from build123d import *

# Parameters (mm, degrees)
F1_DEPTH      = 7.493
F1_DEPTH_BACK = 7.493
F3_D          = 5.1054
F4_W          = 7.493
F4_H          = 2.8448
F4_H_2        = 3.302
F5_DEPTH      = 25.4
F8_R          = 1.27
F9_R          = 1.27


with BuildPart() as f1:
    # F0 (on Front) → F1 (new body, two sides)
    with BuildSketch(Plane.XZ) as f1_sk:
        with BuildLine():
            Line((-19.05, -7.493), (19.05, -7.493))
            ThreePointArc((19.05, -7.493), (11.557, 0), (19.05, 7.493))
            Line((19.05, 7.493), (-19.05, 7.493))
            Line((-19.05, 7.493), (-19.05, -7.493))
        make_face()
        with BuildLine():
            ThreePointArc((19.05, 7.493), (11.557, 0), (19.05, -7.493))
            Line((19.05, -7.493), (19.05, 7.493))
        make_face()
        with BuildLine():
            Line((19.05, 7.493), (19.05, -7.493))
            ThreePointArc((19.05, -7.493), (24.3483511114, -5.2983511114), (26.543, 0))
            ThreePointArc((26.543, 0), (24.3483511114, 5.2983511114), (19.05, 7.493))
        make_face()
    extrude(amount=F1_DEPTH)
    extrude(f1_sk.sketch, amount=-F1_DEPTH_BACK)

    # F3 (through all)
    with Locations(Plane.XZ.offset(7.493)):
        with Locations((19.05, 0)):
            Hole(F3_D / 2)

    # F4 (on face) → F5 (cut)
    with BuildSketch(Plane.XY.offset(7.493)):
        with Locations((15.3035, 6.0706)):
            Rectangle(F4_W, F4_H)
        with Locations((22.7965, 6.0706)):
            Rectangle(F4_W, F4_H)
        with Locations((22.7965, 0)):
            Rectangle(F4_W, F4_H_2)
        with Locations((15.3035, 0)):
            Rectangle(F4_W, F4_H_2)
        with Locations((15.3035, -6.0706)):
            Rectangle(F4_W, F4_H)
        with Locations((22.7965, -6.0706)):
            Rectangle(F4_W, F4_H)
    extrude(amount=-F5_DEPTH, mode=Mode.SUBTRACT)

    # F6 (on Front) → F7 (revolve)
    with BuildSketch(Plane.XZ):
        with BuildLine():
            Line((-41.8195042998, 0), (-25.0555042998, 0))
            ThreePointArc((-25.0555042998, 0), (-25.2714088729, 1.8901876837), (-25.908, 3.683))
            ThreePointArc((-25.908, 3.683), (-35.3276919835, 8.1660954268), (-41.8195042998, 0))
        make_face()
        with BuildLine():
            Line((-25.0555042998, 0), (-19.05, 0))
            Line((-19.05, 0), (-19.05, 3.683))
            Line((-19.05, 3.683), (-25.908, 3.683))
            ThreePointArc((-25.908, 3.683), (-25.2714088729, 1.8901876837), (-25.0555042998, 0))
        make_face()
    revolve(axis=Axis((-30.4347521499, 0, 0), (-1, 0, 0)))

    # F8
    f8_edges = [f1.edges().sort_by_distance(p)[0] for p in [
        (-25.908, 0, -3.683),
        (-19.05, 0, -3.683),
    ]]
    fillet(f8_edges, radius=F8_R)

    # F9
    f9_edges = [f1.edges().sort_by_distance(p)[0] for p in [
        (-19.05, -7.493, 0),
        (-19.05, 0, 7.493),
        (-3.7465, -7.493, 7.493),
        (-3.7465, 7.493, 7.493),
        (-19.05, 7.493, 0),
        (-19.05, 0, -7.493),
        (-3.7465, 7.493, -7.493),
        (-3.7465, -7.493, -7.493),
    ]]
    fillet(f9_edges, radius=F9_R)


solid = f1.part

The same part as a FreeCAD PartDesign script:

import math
import FreeCAD as App
import Part
import Sketcher
Q = App.Units.Quantity


def edges_at(feature, points):
    """Names of the edges that pass closest to the given points."""
    edges = feature.Shape.Edges
    near = lambda p: min(range(len(edges)), key=lambda i: edges[i].distToShape(Part.Vertex(*p))[0])
    return sorted({f"Edge{near(p) + 1}" for p in points})


def add_polygon(sketch, points):
    """Adds a closed chain of lines whose ends are joined by coincident constraints."""
    first, n = sketch.GeometryCount, len(points)
    for a, b in zip(points, points[1:] + points[:1]):
        sketch.addGeometry(Part.LineSegment(App.Vector(*a, 0), App.Vector(*b, 0)), False)
    for i in range(n):
        sketch.addConstraint(Sketcher.Constraint("Coincident", first + i, 2, first + (i + 1) % n, 1))

doc = App.newDocument("Part")
body = doc.addObject("PartDesign::Body", "Body")

# Sketch on XZ plane
sketch1 = body.newObject("Sketcher::SketchObject", "Sketch")
sketch1.AttachmentSupport = (doc.getObject("XZ_Plane"), [""])
sketch1.MapMode = "FlatFace"
sketch1.addGeometry([
    Part.LineSegment(App.Vector(-19, -7, 0), App.Vector(19, -7, 0)),  # 0
    Part.ArcOfCircle(Part.Circle(App.Vector(19, 0, 0), App.Vector(0, 0, 1), 7), math.radians(-90), math.radians(0)),  # 1
    Part.ArcOfCircle(Part.Circle(App.Vector(19, 0, 0), App.Vector(0, 0, 1), 7), math.radians(0), math.radians(90)),  # 2
    Part.LineSegment(App.Vector(19, 7, 0), App.Vector(-19, 7, 0)),  # 3
    Part.LineSegment(App.Vector(-19, 7, 0), App.Vector(-19, -7, 0)),  # 4
], False)
sketch1.addConstraint([
    Sketcher.Constraint("Tangent", 0, 2, 1, 1),
    Sketcher.Constraint("Tangent", 1, 2, 2, 1),
    Sketcher.Constraint("Tangent", 2, 2, 3, 1),
    Sketcher.Constraint("Coincident", 3, 2, 4, 1),
    Sketcher.Constraint("Coincident", 4, 2, 0, 1),
    Sketcher.Constraint("Horizontal", 0),
    Sketcher.Constraint("Horizontal", 3),
    Sketcher.Constraint("Vertical", 4),
    Sketcher.Constraint("Equal", 1, 2),
    Sketcher.Constraint("Symmetric", 0, 2, 3, 2, -1, 1),
    Sketcher.Constraint("PointOnObject", 1, 2, -1),
    Sketcher.Constraint("DistanceX", 0, 1, 0, 2, Q("1.5 in")),
    Sketcher.Constraint("Radius", 1, Q("0.295 in")),
])
pad1 = body.newObject("PartDesign::Pad", "Pad")
pad1.Profile = sketch1
pad1.Type = "TwoLengths"
pad1.Length = Q("0.295 in")
pad1.Length2 = Q("0.295 in")

# Sketch on XZ plane
sketch2 = body.newObject("Sketcher::SketchObject", "Sketch001")
sketch2.AttachmentSupport = (doc.getObject("XZ_Plane"), [""])
sketch2.MapMode = "FlatFace"
sketch2.AttachmentOffset = App.Placement(App.Vector(0, 0, 0.295 * 25.4), App.Rotation())
sketch2.addGeometry(Part.Circle(App.Vector(19.1, 0, 0), App.Vector(0, 0, 1), 2.6), False)
sketch2.addConstraint([
    Sketcher.Constraint("PointOnObject", 0, 3, -1),
    Sketcher.Constraint("Diameter", 0, Q("0.201 in")),
    Sketcher.Constraint("DistanceX", -1, 1, 0, 3, Q("0.75 in")),
])
doc.recompute()
hole = body.newObject("PartDesign::Hole", "Hole")
hole.Profile = sketch2
hole.ThreadType = "None"
hole.Diameter = Q("0.201 in")
hole.DepthType = "ThroughAll"

# Sketch on XY plane
sketch3 = body.newObject("Sketcher::SketchObject", "Sketch002")
sketch3.AttachmentSupport = (doc.getObject("XY_Plane"), [""])
sketch3.MapMode = "FlatFace"
sketch3.AttachmentOffset = App.Placement(App.Vector(0, 0, 0.295 * 25.4), App.Rotation())
add_polygon(sketch3, [(11.6, 7.5), (11.6, 4.6), (26.5, 4.6), (26.5, 7.5)])  # lines 0-3
add_polygon(sketch3, [(26.5, -1.7), (26.5, 1.7), (11.6, 1.7), (11.6, -1.7)])  # lines 4-7
add_polygon(sketch3, [(11.6, -4.6), (11.6, -7.5), (26.5, -7.5), (26.5, -4.6)])  # lines 8-11
sketch3.addConstraint([
    Sketcher.Constraint("Vertical", 0),
    Sketcher.Constraint("Horizontal", 1),
    Sketcher.Constraint("Vertical", 2),
    Sketcher.Constraint("Horizontal", 3),
    Sketcher.Constraint("Vertical", 4),
    Sketcher.Constraint("Horizontal", 5),
    Sketcher.Constraint("Vertical", 6),
    Sketcher.Constraint("Horizontal", 7),
    Sketcher.Constraint("Vertical", 8),
    Sketcher.Constraint("Horizontal", 9),
    Sketcher.Constraint("Vertical", 10),
    Sketcher.Constraint("Horizontal", 11),
    Sketcher.Constraint("Symmetric", 3, 2, 8, 2, -1),
    Sketcher.Constraint("Symmetric", 1, 2, 10, 2, -1),
    Sketcher.Constraint("Vertical", 2, 2, 4, 2),
    Sketcher.Constraint("Vertical", 3, 2, 5, 2),
    Sketcher.Constraint("DistanceX", 1, 1, 1, 2, Q("0.59 in")),
    Sketcher.Constraint("DistanceY", 4, 1, 4, 2, Q("0.13 in")),
    Sketcher.Constraint("DistanceY", 0, 2, 0, 1, Q("0.112 in")),
    Sketcher.Constraint("DistanceY", 4, 2, 2, 2, Q("0.23 in")),
    Sketcher.Constraint("DistanceY", 8, 2, 6, 2, Q("0.23 in")),
    Sketcher.Constraint("DistanceX", -1, 1, 0, 2, Q("0.455 in")),
])
pocket1 = body.newObject("PartDesign::Pocket", "Pocket")
pocket1.Profile = sketch3
pocket1.Length = Q("1 in")

# Sketch on XZ plane
sketch4 = body.newObject("Sketcher::SketchObject", "Sketch003")
sketch4.AttachmentSupport = (doc.getObject("XZ_Plane"), [""])
sketch4.MapMode = "FlatFace"
sketch4.addGeometry([
    Part.LineSegment(App.Vector(-41.8, 0, 0), App.Vector(-19.1, 0, 0)),
    Part.LineSegment(App.Vector(-19.1, 0, 0), App.Vector(-19.1, 3.7, 0)),
    Part.LineSegment(App.Vector(-19.1, 3.7, 0), App.Vector(-25.9, 3.7, 0)),
    Part.ArcOfCircle(Part.Circle(App.Vector(-33.4, 0, 0), App.Vector(0, 0, 1), 8.4), math.radians(26), math.radians(180)),
], False)
sketch4.addConstraint([
    Sketcher.Constraint("Coincident", 0, 2, 1, 1),
    Sketcher.Constraint("Coincident", 1, 2, 2, 1),
    Sketcher.Constraint("Coincident", 2, 2, 3, 1),
    Sketcher.Constraint("Coincident", 3, 2, 0, 1),
    Sketcher.Constraint("Horizontal", 0),
    Sketcher.Constraint("Vertical", 1),
    Sketcher.Constraint("Horizontal", 2),
    Sketcher.Constraint("PointOnObject", 3, 3, -1),
    Sketcher.Constraint("PointOnObject", 0, 2, -1),
    Sketcher.Constraint("Radius", 3, Q("0.33 in")),
    Sketcher.Constraint("DistanceX", 2, 2, 2, 1, Q("0.27 in")),
    Sketcher.Constraint("DistanceY", 1, 1, 1, 2, Q("0.145 in")),
    Sketcher.Constraint("DistanceX", 0, 2, -1, 1, Q("0.75 in")),
])
revolution = body.newObject("PartDesign::Revolution", "Revolution")
revolution.Profile = sketch4
revolution.ReferenceAxis = (sketch4, ["H_Axis"])
revolution.Angle = 360
doc.recompute()

fillet = body.newObject("PartDesign::Fillet", "Fillet")
fillet.Base = (revolution, edges_at(revolution, [(-25.908, 0, -3.683), (-19.05, 0, -3.683)]))
fillet.Radius = Q("0.05 in")
doc.recompute()

fillet2 = body.newObject("PartDesign::Fillet", "Fillet001")
fillet2.Base = (fillet, edges_at(fillet, [
    (-19.05, -7.493, 0),
    (-19.05, 0, 7.493),
    (-3.747, -7.493, 7.493),
    (-3.747, 7.493, 7.493),
    (-19.05, 7.493, 0),
    (-19.05, 0, -7.493),
    (-3.747, 7.493, -7.493),
    (-3.747, -7.493, -7.493),
]))
fillet2.Radius = Q("0.05 in")

doc.recompute()
